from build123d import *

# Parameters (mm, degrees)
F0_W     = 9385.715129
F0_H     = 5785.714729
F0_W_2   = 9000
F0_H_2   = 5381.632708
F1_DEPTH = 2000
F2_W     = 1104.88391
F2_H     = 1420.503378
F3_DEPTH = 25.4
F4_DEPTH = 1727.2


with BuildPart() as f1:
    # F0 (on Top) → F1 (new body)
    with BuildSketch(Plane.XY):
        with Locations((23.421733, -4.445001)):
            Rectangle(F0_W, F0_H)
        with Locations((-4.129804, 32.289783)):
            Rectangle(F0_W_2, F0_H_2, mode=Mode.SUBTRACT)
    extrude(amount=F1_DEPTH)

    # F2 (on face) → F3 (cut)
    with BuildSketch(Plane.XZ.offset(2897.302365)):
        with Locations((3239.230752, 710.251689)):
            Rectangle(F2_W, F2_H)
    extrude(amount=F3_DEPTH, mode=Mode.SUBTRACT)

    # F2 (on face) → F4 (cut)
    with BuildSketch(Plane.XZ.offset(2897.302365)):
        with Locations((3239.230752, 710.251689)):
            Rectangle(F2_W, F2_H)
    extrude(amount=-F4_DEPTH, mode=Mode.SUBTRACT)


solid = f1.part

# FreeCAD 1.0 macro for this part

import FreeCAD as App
import Part
import Sketcher
from FreeCAD import Vector
Q = App.Units.Quantity


def add_polygon(sketch, points):
    """Adds a closed chain of lines whose ends are joined by coincident constraints."""
    first, n = sketch.GeometryCount, len(points)
    for a, b in zip(points, points[1:] + points[:1]):
        sketch.addGeometry(Part.LineSegment(App.Vector(*a, 0), App.Vector(*b, 0)), False)
    for i in range(n):
        sketch.addConstraint(Sketcher.Constraint("Coincident", first + i, 2, first + (i + 1) % n, 1))

doc = App.newDocument("Part")
params = doc.addObject("Spreadsheet::Sheet", "Params")
for row, (alias, value) in enumerate([
    ("sketch1_width", "9000 mm"),
    ("pad1_length", "2000 mm"),
    ("pocket1_length", "25.4 mm"),
    ("pocket2_length", "1727.2 mm"),
], start=1):
    params.set(f"A{row}", alias)
    params.set(f"B{row}", "=" + value)
    params.setAlias(f"B{row}", alias)

body = doc.addObject("PartDesign::Body", "Body")

# Sketch on XY plane
sketch1 = doc.addObject("Sketcher::SketchObject", "Sketch")
body.addObject(sketch1)
sketch1.AttachmentSupport = (doc.XY_Plane, [""])
sketch1.MapMode = "FlatFace"
add_polygon(sketch1, [(-4669, 2888), (-4669, -2897), (4716, -2897), (4716, 2888)])  # lines 0-3
add_polygon(sketch1, [(4496, -2659), (-4504, -2659), (-4504, 2723), (4496, 2723)])  # lines 4-7
sketch1.addConstraint([
    Sketcher.Constraint("Vertical", 0),
    Sketcher.Constraint("Horizontal", 1),
    Sketcher.Constraint("Vertical", 2),
    Sketcher.Constraint("Horizontal", 3),
    Sketcher.Constraint("Horizontal", 4),
    Sketcher.Constraint("Vertical", 5),
    Sketcher.Constraint("Horizontal", 6),
    Sketcher.Constraint("Vertical", 7),
    Sketcher.Constraint("DistanceX", 4, 2, 4, 1, Q("9000 mm")),
    Sketcher.Constraint("DistanceX", 1, 1, 1, 2, Q("9385.715129 mm")),
    Sketcher.Constraint("DistanceY", 0, 2, 0, 1, Q("5785.714729 mm")),
    Sketcher.Constraint("DistanceY", 5, 1, 5, 2, Q("5381.632708 mm")),
    Sketcher.Constraint("DistanceX", 4, 2, 1, 2, Q("9220.409102 mm")),
    Sketcher.Constraint("DistanceX", 0, 2, -1, 1, Q("4669.435831 mm")),
    Sketcher.Constraint("DistanceY", 4, 2, -1, 1, Q("2658.526571 mm")),
    Sketcher.Constraint("DistanceY", 0, 2, -1, 1, Q("2897.302366 mm")),
])
sketch1.setExpression("Constraints[16]", "Params.sketch1_width")
pad1 = doc.addObject("PartDesign::Pad", "Pad")
body.addObject(pad1)
pad1.Profile = sketch1
pad1.setExpression("Length", "Params.pad1_length")

# Sketch on XZ plane
sketch2 = doc.addObject("Sketcher::SketchObject", "Sketch001")
body.addObject(sketch2)
sketch2.AttachmentSupport = (doc.XZ_Plane, [""])
sketch2.MapMode = "FlatFace"
sketch2.AttachmentOffset = App.Placement(Vector(0, 0, 2897.302365), App.Rotation())
add_polygon(sketch2, [(2687, 1421), (2687, 0), (3792, 0), (3792, 1421)])  # lines 0-3
sketch2.addConstraint([
    Sketcher.Constraint("Vertical", 0),
    Sketcher.Constraint("Horizontal", 1),
    Sketcher.Constraint("Vertical", 2),
    Sketcher.Constraint("Horizontal", 3),
    Sketcher.Constraint("PointOnObject", 0, 2, -1),
    Sketcher.Constraint("DistanceX", 1, 1, 1, 2, Q("1104.88391 mm")),
    Sketcher.Constraint("DistanceY", 0, 2, 0, 1, Q("1420.503378 mm")),
    Sketcher.Constraint("DistanceX", -1, 1, 0, 2, Q("2686.788797 mm")),
])
pocket1 = doc.addObject("PartDesign::Pocket", "Pocket")
body.addObject(pocket1)
pocket1.Profile = sketch2
pocket1.setExpression("Length", "Params.pocket1_length")
pocket1.Reversed = True

# Sketch on XZ plane
sketch3 = doc.addObject("Sketcher::SketchObject", "Sketch002")
body.addObject(sketch3)
sketch3.AttachmentSupport = (doc.XZ_Plane, [""])
sketch3.MapMode = "FlatFace"
sketch3.AttachmentOffset = App.Placement(Vector(0, 0, 2897.302365), App.Rotation())
add_polygon(sketch3, [(2687, 1421), (2687, 0), (3792, 0), (3792, 1421)])  # lines 0-3
sketch3.addConstraint([
    Sketcher.Constraint("Vertical", 0),
    Sketcher.Constraint("Horizontal", 1),
    Sketcher.Constraint("Vertical", 2),
    Sketcher.Constraint("Horizontal", 3),
    Sketcher.Constraint("PointOnObject", 0, 2, -1),
    Sketcher.Constraint("DistanceX", 1, 1, 1, 2, Q("1104.88391 mm")),
    Sketcher.Constraint("DistanceY", 0, 2, 0, 1, Q("1420.503378 mm")),
    Sketcher.Constraint("DistanceX", -1, 1, 0, 2, Q("2686.788797 mm")),
])
pocket2 = doc.addObject("PartDesign::Pocket", "Pocket001")
body.addObject(pocket2)
pocket2.Profile = sketch3
pocket2.setExpression("Length", "Params.pocket2_length")

doc.recompute()
